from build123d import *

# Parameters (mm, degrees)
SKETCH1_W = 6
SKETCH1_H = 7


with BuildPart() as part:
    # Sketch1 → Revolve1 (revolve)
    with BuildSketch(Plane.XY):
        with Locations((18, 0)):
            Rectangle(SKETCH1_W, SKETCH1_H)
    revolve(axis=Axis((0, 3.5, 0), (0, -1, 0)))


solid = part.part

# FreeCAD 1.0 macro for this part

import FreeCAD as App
import Part
import Sketcher

V = App.Vector
Q = App.Units.Quantity

doc = App.newDocument("Part")
body = doc.addObject("PartDesign::Body", "Body")

# Sketch on XY plane
sketch1 = body.newObject("Sketcher::SketchObject", "Sketch")
sketch1.AttachmentSupport = (doc.getObject("XY_Plane"), [""])
sketch1.MapMode = "FlatFace"
sketch1.addGeometry(Part.LineSegment(V(15, 3.5, 0), V(15, -3.5, 0)), False)
sketch1.addGeometry(Part.LineSegment(V(15, -3.5, 0), V(21, -3.5, 0)), False)
sketch1.addGeometry(Part.LineSegment(V(21, -3.5, 0), V(21, 3.5, 0)), False)
sketch1.addGeometry(Part.LineSegment(V(21, 3.5, 0), V(15, 3.5, 0)), False)
sketch1.addConstraint(Sketcher.Constraint("Coincident", 0, 2, 1, 1))
sketch1.addConstraint(Sketcher.Constraint("Coincident", 1, 2, 2, 1))
sketch1.addConstraint(Sketcher.Constraint("Coincident", 2, 2, 3, 1))
sketch1.addConstraint(Sketcher.Constraint("Coincident", 3, 2, 0, 1))
sketch1.addConstraint(Sketcher.Constraint("Vertical", 0))
sketch1.addConstraint(Sketcher.Constraint("Horizontal", 1))
sketch1.addConstraint(Sketcher.Constraint("Vertical", 2))
sketch1.addConstraint(Sketcher.Constraint("Horizontal", 3))
sketch1.addConstraint(Sketcher.Constraint("DistanceX", 1, 1, 1, 2, Q("6 mm")))
sketch1.addConstraint(Sketcher.Constraint("DistanceY", 0, 2, 0, 1, Q("7 mm")))
sketch1.addConstraint(Sketcher.Constraint("DistanceX", -1, 1, 0, 2, Q("15 mm")))
sketch1.addConstraint(Sketcher.Constraint("DistanceY", 0, 2, -1, 1, Q("3.5 mm")))
revolution = body.newObject("PartDesign::Revolution", "Revolution")
revolution.Profile = sketch1
revolution.ReferenceAxis = (sketch1, ["V_Axis"])
revolution.Angle = 360

doc.recompute()
